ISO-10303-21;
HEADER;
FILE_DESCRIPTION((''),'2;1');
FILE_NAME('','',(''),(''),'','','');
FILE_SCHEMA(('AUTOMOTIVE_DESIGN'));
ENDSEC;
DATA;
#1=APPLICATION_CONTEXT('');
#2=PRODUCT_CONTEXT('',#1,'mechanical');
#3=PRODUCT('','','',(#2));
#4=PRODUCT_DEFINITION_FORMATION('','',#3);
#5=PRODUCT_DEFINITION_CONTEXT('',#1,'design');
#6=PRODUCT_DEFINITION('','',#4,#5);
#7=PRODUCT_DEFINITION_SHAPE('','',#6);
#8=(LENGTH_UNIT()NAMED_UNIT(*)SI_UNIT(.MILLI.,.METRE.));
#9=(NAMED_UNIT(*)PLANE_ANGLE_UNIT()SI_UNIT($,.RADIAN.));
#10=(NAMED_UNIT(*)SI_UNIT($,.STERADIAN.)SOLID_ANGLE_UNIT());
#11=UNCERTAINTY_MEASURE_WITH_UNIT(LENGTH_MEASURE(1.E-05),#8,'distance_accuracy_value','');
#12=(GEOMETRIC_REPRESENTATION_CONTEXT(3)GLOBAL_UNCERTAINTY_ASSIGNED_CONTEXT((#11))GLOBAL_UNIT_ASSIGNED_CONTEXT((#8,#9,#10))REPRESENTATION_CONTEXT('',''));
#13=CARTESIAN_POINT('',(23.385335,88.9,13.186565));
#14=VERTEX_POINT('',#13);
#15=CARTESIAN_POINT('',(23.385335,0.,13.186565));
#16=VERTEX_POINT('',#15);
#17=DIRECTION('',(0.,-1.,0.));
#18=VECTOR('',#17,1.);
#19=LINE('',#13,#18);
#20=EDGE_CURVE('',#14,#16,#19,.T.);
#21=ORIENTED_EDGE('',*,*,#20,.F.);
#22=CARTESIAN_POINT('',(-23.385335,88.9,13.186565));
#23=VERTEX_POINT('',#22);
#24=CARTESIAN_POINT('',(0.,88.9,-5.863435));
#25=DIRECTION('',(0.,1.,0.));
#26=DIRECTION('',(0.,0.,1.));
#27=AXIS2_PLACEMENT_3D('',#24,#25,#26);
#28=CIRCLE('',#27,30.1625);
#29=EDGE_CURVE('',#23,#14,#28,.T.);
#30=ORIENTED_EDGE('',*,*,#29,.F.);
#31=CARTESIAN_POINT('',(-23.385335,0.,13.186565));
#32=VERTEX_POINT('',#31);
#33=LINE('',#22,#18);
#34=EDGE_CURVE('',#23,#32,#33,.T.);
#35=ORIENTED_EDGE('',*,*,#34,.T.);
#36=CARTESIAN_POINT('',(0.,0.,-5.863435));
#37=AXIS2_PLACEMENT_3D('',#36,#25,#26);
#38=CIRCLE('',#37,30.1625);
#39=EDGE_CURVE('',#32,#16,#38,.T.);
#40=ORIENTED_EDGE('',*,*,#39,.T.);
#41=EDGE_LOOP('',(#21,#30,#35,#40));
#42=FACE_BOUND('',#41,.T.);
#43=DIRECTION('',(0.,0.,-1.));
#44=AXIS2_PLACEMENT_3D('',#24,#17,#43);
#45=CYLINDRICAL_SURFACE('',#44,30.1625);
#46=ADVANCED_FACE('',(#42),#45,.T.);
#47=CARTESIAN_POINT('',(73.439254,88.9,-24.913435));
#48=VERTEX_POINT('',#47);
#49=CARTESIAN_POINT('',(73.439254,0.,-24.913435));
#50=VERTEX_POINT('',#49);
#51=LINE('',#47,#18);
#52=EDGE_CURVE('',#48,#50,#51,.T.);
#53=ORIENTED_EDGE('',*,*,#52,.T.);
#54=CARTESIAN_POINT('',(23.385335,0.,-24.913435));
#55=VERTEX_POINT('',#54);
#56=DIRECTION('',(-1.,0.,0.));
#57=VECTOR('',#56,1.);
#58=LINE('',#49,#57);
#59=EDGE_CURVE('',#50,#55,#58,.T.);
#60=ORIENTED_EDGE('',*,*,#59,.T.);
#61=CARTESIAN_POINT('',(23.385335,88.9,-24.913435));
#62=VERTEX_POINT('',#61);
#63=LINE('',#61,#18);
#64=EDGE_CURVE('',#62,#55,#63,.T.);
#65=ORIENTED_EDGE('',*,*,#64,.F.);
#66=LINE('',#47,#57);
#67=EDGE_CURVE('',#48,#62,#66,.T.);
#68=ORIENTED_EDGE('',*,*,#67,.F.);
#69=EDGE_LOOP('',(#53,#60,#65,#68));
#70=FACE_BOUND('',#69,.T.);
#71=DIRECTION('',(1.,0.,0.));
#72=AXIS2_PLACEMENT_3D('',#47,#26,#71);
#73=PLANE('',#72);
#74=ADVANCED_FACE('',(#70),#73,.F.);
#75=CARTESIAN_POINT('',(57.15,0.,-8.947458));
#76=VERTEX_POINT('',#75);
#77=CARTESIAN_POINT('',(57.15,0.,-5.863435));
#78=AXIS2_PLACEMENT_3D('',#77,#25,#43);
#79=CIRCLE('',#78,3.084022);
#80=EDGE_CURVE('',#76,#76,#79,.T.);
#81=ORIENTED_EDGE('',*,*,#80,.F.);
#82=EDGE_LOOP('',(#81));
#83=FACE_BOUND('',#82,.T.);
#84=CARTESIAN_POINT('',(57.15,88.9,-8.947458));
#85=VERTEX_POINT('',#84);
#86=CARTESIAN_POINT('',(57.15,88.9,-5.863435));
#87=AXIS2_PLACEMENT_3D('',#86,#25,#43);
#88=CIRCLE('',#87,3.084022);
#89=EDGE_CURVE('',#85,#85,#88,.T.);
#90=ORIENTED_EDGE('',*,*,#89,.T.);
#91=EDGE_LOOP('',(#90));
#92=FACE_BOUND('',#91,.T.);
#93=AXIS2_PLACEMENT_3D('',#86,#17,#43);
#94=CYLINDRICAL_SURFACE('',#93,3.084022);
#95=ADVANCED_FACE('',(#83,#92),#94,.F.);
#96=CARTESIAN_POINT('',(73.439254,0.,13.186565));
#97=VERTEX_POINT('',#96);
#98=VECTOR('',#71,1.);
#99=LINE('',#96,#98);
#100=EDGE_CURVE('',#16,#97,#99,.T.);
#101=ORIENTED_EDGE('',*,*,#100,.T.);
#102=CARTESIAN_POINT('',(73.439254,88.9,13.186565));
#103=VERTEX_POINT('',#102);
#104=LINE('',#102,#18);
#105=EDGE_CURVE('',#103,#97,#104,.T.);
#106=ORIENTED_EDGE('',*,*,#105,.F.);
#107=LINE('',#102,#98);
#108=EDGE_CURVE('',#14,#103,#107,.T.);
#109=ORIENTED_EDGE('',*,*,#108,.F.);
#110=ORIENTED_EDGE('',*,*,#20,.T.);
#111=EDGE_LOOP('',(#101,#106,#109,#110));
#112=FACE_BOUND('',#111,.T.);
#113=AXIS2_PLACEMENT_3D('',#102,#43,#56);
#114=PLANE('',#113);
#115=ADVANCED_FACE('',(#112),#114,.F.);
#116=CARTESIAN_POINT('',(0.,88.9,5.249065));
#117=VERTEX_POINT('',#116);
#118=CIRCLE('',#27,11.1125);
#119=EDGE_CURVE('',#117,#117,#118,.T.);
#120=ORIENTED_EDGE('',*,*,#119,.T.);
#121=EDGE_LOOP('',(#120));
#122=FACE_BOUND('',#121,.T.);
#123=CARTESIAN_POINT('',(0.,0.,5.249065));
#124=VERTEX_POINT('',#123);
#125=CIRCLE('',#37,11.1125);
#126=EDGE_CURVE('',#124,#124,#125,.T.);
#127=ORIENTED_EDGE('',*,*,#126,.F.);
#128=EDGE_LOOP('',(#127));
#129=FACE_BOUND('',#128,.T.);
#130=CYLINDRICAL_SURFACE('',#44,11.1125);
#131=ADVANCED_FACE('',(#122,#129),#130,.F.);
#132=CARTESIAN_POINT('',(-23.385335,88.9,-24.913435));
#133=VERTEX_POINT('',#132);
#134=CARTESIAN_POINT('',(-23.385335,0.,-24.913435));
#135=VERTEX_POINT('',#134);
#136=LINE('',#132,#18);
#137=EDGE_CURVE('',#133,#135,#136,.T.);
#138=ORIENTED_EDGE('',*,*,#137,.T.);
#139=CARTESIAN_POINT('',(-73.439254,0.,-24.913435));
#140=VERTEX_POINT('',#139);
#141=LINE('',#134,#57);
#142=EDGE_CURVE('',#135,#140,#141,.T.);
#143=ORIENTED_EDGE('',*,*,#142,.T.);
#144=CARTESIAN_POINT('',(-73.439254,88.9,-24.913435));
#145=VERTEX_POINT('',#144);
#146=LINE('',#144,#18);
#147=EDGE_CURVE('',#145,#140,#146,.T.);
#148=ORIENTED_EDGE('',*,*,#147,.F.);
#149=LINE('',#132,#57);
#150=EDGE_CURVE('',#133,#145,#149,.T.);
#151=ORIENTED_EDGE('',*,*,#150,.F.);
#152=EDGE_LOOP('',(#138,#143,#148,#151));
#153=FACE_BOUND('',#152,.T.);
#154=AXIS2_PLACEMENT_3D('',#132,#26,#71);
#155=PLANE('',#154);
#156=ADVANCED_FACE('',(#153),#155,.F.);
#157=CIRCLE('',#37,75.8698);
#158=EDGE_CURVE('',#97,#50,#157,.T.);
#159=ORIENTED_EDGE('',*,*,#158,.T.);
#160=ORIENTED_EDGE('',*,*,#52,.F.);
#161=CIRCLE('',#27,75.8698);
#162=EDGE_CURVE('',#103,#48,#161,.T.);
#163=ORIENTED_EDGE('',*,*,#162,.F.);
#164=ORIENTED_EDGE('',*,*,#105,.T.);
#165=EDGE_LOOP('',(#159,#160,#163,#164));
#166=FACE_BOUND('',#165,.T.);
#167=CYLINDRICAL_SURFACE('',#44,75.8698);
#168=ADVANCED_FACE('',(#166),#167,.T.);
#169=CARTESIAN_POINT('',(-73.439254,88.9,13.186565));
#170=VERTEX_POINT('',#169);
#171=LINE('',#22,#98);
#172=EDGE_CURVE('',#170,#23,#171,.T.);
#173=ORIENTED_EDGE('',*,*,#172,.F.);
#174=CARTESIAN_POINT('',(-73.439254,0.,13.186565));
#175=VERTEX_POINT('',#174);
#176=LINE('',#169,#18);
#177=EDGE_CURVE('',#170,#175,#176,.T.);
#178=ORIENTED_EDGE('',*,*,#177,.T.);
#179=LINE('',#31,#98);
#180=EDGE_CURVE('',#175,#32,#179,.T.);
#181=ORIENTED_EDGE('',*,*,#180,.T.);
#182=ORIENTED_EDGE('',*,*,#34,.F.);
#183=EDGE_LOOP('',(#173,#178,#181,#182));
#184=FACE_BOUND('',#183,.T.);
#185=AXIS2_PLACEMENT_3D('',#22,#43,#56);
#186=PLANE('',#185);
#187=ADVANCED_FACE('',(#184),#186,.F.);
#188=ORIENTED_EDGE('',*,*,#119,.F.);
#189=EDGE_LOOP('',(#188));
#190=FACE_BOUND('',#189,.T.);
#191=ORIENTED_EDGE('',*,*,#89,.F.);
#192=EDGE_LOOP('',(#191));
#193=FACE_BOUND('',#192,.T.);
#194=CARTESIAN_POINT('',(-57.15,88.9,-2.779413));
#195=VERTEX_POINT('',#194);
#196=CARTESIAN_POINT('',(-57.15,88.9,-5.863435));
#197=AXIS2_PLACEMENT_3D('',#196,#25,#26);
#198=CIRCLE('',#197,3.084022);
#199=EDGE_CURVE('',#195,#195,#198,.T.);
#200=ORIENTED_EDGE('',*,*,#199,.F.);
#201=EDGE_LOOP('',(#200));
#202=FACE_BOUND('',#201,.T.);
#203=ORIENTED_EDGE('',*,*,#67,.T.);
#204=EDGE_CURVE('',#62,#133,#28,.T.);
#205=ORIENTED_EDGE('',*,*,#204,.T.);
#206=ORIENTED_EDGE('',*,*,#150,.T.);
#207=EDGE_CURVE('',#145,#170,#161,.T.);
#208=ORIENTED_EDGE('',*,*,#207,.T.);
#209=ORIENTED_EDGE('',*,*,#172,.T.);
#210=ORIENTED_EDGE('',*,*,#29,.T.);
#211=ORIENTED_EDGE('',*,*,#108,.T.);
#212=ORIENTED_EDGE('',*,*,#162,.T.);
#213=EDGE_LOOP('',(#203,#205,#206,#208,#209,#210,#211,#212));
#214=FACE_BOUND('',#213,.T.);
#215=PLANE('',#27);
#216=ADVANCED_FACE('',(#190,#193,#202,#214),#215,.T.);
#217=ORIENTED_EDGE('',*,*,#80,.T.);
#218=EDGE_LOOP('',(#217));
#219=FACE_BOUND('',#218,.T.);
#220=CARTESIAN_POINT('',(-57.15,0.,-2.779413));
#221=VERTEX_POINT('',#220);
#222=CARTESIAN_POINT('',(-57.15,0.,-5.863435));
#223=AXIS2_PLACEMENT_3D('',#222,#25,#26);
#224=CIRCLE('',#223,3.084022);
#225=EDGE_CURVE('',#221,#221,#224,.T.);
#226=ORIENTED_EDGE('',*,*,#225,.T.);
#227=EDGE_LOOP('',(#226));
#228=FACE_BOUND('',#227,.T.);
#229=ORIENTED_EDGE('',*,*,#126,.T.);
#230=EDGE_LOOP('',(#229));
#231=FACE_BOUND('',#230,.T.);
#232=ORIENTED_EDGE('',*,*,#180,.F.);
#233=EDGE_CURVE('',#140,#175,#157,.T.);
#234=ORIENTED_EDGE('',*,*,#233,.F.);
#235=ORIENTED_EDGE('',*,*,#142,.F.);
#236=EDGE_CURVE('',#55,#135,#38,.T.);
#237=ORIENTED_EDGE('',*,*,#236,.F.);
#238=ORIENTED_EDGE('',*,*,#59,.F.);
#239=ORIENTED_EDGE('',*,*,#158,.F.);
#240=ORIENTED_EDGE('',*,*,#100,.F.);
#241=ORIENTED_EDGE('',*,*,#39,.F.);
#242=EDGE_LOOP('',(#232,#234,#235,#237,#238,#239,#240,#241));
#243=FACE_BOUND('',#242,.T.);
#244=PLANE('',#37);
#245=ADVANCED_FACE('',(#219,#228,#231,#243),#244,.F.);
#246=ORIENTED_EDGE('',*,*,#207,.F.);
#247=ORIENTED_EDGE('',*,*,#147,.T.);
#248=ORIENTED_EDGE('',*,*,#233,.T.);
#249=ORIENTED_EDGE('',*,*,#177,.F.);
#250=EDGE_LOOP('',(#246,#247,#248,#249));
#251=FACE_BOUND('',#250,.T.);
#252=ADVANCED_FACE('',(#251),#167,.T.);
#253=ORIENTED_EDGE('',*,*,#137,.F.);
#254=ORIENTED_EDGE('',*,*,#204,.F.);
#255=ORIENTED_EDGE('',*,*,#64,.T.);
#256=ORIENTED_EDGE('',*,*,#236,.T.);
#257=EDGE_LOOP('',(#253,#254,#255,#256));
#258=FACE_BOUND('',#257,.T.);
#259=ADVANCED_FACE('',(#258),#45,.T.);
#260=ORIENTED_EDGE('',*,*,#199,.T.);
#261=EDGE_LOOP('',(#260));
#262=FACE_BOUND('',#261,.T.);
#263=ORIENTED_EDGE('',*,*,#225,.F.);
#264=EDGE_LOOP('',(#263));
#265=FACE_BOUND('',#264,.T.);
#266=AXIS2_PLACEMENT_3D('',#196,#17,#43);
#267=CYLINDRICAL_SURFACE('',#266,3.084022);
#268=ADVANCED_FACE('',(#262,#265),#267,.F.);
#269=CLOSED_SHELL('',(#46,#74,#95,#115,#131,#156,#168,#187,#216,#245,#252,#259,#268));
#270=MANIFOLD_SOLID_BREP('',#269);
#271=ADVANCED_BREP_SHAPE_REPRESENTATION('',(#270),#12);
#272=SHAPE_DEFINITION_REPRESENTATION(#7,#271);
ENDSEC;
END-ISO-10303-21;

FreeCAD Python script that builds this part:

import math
import FreeCAD as App
import Part
import Sketcher
from FreeCAD import Vector
Q = App.Units.Quantity

doc = App.newDocument("Part")
body = doc.addObject("PartDesign::Body", "Body")

sketch1 = body.newObject("Sketcher::SketchObject", "Sketch")
sketch1.AttachmentSupport = (doc.getObject("XZ_Plane"), [""])
sketch1.MapMode = "FlatFace"
sketch1.addGeometry(Part.LineSegment(Vector(23.4, 13.2, 0), Vector(73.4, 13.2, 0)), False)
sketch1.addGeometry(Part.ArcOfCircle(Part.Circle(Vector(0, -5.9, 0), Vector(0, 0, 1), 75.9), math.radians(-15), math.radians(15)), False)
sketch1.addGeometry(Part.LineSegment(Vector(73.4, -24.9, 0), Vector(23.4, -24.9, 0)), False)
sketch1.addGeometry(Part.ArcOfCircle(Part.Circle(Vector(0, -5.9, 0), Vector(0, 0, 1), 30.2), math.radians(-141), math.radians(-39)), False)
sketch1.addGeometry(Part.LineSegment(Vector(-23.4, -24.9, 0), Vector(-73.4, -24.9, 0)), False)
sketch1.addGeometry(Part.ArcOfCircle(Part.Circle(Vector(0, -5.9, 0), Vector(0, 0, 1), 75.9), math.radians(165), math.radians(195)), False)
sketch1.addGeometry(Part.LineSegment(Vector(-73.4, 13.2, 0), Vector(-23.4, 13.2, 0)), False)
sketch1.addGeometry(Part.ArcOfCircle(Part.Circle(Vector(0, -5.9, 0), Vector(0, 0, 1), 30.2), math.radians(39), math.radians(141)), False)
sketch1.addGeometry(Part.Circle(Vector(57.1, -5.9, 0), Vector(0, 0, 1), 3.1), False)
sketch1.addGeometry(Part.Circle(Vector(0, -5.9, 0), Vector(0, 0, 1), 11.1), False)
sketch1.addGeometry(Part.Circle(Vector(-57.1, -5.9, 0), Vector(0, 0, 1), 3.1), False)
sketch1.addConstraint(Sketcher.Constraint("Coincident", 0, 2, 1, 2))
sketch1.addConstraint(Sketcher.Constraint("Coincident", 1, 1, 2, 1))
sketch1.addConstraint(Sketcher.Constraint("Coincident", 2, 2, 3, 2))
sketch1.addConstraint(Sketcher.Constraint("Coincident", 3, 1, 4, 1))
sketch1.addConstraint(Sketcher.Constraint("Coincident", 4, 2, 5, 2))
sketch1.addConstraint(Sketcher.Constraint("Coincident", 5, 1, 6, 1))
sketch1.addConstraint(Sketcher.Constraint("Coincident", 6, 2, 7, 2))
sketch1.addConstraint(Sketcher.Constraint("Coincident", 7, 1, 0, 1))
sketch1.addConstraint(Sketcher.Constraint("Horizontal", 0))
sketch1.addConstraint(Sketcher.Constraint("Horizontal", 2))
sketch1.addConstraint(Sketcher.Constraint("Horizontal", 4))
sketch1.addConstraint(Sketcher.Constraint("Horizontal", 6))
sketch1.addConstraint(Sketcher.Constraint("Coincident", 3, 3, 1, 3))
sketch1.addConstraint(Sketcher.Constraint("Coincident", 5, 3, 1, 3))
sketch1.addConstraint(Sketcher.Constraint("Coincident", 7, 3, 1, 3))
sketch1.addConstraint(Sketcher.Constraint("Coincident", 9, 3, 1, 3))
sketch1.addConstraint(Sketcher.Constraint("Equal", 1, 5))
sketch1.addConstraint(Sketcher.Constraint("Equal", 3, 7))
sketch1.addConstraint(Sketcher.Constraint("Equal", 8, 10))
sketch1.addConstraint(Sketcher.Constraint("Symmetric", 8, 3, 10, 3, -2))
sketch1.addConstraint(Sketcher.Constraint("Symmetric", 2, 2, 3, 1, -2))
sketch1.addConstraint(Sketcher.Constraint("Horizontal", 7, 3, 8, 3))
sketch1.addConstraint(Sketcher.Constraint("Horizontal", 0, 2, 5, 1))
sketch1.addConstraint(Sketcher.Constraint("Vertical", 0, 2, 1, 1))
sketch1.addConstraint(Sketcher.Constraint("Diameter", 9, Q("0.875 in")))
sketch1.addConstraint(Sketcher.Constraint("Radius", 1, Q("2.987 in")))
sketch1.addConstraint(Sketcher.Constraint("Radius", 3, Q("1.1875 in")))
sketch1.addConstraint(Sketcher.Constraint("DistanceY", 1, 1, 0, 2, Q("1.5 in")))
sketch1.addConstraint(Sketcher.Constraint("DistanceX", -1, 1, 8, 3, Q("2.25 in")))
sketch1.addConstraint(Sketcher.Constraint("Diameter", 8, 6.168045))
sketch1.addConstraint(Sketcher.Constraint("DistanceY", 1, 3, -1, 1, 5.863435))
pad1 = body.newObject("PartDesign::Pad", "Pad")
pad1.Profile = sketch1
pad1.Length = Q("3.5 in")
pad1.Reversed = True

doc.recompute()
